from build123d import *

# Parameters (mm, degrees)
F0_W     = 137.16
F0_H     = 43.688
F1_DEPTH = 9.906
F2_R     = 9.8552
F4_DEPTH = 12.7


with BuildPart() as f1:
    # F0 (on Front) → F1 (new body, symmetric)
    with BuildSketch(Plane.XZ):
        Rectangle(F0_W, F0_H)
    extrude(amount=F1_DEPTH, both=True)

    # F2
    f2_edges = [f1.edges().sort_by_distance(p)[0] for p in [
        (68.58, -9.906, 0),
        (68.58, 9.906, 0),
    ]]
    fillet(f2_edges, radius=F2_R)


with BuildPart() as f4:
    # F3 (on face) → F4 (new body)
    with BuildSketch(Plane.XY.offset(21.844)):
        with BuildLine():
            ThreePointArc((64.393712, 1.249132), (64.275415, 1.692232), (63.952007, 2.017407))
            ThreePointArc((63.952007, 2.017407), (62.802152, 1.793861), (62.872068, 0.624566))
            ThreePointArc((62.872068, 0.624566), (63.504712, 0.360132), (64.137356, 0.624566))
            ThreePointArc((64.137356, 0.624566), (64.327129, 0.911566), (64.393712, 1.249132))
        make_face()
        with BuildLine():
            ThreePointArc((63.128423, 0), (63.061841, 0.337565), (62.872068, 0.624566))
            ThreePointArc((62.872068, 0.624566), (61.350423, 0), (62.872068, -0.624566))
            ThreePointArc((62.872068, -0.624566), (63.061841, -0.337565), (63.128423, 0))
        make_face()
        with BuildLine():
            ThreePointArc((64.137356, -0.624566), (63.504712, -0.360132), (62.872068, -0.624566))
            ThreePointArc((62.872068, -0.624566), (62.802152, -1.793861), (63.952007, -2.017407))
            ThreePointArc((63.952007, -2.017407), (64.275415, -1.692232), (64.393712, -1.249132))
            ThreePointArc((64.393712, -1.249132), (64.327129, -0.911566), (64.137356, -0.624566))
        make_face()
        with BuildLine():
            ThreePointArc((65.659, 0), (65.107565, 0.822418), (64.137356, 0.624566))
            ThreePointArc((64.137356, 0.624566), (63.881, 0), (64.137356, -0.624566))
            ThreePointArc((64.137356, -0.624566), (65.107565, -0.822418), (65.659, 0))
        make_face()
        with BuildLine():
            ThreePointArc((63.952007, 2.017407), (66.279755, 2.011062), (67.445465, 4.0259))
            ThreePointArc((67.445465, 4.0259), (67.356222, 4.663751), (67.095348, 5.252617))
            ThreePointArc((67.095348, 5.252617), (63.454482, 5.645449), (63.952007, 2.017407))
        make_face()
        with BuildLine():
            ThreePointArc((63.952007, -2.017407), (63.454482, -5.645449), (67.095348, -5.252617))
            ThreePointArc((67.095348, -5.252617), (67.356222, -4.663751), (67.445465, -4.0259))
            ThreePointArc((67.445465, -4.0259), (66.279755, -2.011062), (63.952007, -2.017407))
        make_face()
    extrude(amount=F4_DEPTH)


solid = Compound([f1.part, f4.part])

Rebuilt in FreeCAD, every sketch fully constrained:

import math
import FreeCAD as App
import Part
import Sketcher
from FreeCAD import Vector
Q = App.Units.Quantity


def edges_at(feature, points):
    """Names of the edges that pass closest to the given points."""
    edges = feature.Shape.Edges
    near = lambda p: min(range(len(edges)), key=lambda i: edges[i].distToShape(Part.Vertex(*p))[0])
    return sorted({f"Edge{near(p) + 1}" for p in points})


def add_polygon(sketch, points):
    """Adds a closed chain of lines whose ends are joined by coincident constraints."""
    first, n = sketch.GeometryCount, len(points)
    for a, b in zip(points, points[1:] + points[:1]):
        sketch.addGeometry(Part.LineSegment(App.Vector(*a, 0), App.Vector(*b, 0)), False)
    for i in range(n):
        sketch.addConstraint(Sketcher.Constraint("Coincident", first + i, 2, first + (i + 1) % n, 1))

doc = App.newDocument("Part")
body = doc.addObject("PartDesign::Body", "Body")

sketch1 = body.newObject("Sketcher::SketchObject", "Sketch")
sketch1.AttachmentSupport = (doc.getObject("XZ_Plane"), [""])
sketch1.MapMode = "FlatFace"
add_polygon(sketch1, [(-69, 22), (-69, -22), (69, -22), (69, 22)])
sketch1.addConstraint([
    Sketcher.Constraint("Vertical", 0),
    Sketcher.Constraint("Horizontal", 1),
    Sketcher.Constraint("Vertical", 2),
    Sketcher.Constraint("Horizontal", 3),
    Sketcher.Constraint("Symmetric", 0, 2, 2, 2, -1, 1),
    Sketcher.Constraint("DistanceX", 1, 1, 1, 2, Q("5.4 in")),
    Sketcher.Constraint("DistanceY", 0, 2, 0, 1, Q("1.72 in")),
])
pad1 = body.newObject("PartDesign::Pad", "Pad")
pad1.Profile = sketch1
pad1.Length = Q("0.78 in")
pad1.Midplane = True
doc.recompute()

fillet = body.newObject("PartDesign::Fillet", "Fillet")
fillet.Base = (pad1, edges_at(pad1, [(68.58, -9.906, 0), (68.58, 9.906, 0)]))
fillet.Radius = Q("0.388 in")
body2 = doc.addObject("PartDesign::Body", "Body001")
body2.AllowCompound = True

sketch2 = body2.newObject("Sketcher::SketchObject", "Sketch001")
sketch2.AttachmentSupport = (doc.getObject("XY_Plane001"), [""])
sketch2.MapMode = "FlatFace"
sketch2.AttachmentOffset = App.Placement(Vector(0, 0, 0.86 * 25.4), App.Rotation())
sketch2.addGeometry([
    Part.ArcOfCircle(Part.Circle(Vector(63.5, 1.2, 0), Vector(0, 0, 1), 0.9), math.radians(0), math.radians(60)),
    Part.ArcOfCircle(Part.Circle(Vector(63.5, 1.2, 0), Vector(0, 0, 1), 0.9), math.radians(60), math.radians(225)),
    Part.ArcOfCircle(Part.Circle(Vector(63.5, 1.2, 0), Vector(0, 0, 1), 0.9), math.radians(-135), math.radians(-45)),
    Part.ArcOfCircle(Part.Circle(Vector(63.5, 1.2, 0), Vector(0, 0, 1), 0.9), math.radians(-45), math.radians(0)),
    Part.ArcOfCircle(Part.Circle(Vector(62.2, 0, 0), Vector(0, 0, 1), 0.9), math.radians(0), math.radians(45)),
    Part.ArcOfCircle(Part.Circle(Vector(62.2, 0, 0), Vector(0, 0, 1), 0.9), math.radians(45), math.radians(315)),
    Part.ArcOfCircle(Part.Circle(Vector(62.2, 0, 0), Vector(0, 0, 1), 0.9), math.radians(-45), math.radians(0)),
    Part.ArcOfCircle(Part.Circle(Vector(63.5, -1.2, 0), Vector(0, 0, 1), 0.9), math.radians(45), math.radians(135)),
    Part.ArcOfCircle(Part.Circle(Vector(63.5, -1.2, 0), Vector(0, 0, 1), 0.9), math.radians(135), math.radians(300)),
    Part.ArcOfCircle(Part.Circle(Vector(63.5, -1.2, 0), Vector(0, 0, 1), 0.9), math.radians(-60), math.radians(0)),
    Part.ArcOfCircle(Part.Circle(Vector(63.5, -1.2, 0), Vector(0, 0, 1), 0.9), math.radians(0), math.radians(45)),
    Part.ArcOfCircle(Part.Circle(Vector(64.8, 0, 0), Vector(0, 0, 1), 0.9), math.radians(0), math.radians(135)),
    Part.ArcOfCircle(Part.Circle(Vector(64.8, 0, 0), Vector(0, 0, 1), 0.9), math.radians(135), math.radians(225)),
    Part.ArcOfCircle(Part.Circle(Vector(64.8, 0, 0), Vector(0, 0, 1), 0.9), math.radians(-135), math.radians(0)),
    Part.ArcOfCircle(Part.Circle(Vector(65.1, 4, 0), Vector(0, 0, 1), 2.3), math.radians(-120), math.radians(0)),
    Part.ArcOfCircle(Part.Circle(Vector(65.1, 4, 0), Vector(0, 0, 1), 2.3), math.radians(0), math.radians(32)),
    Part.ArcOfCircle(Part.Circle(Vector(65.1, 4, 0), Vector(0, 0, 1), 2.3), math.radians(32), math.radians(240)),
    Part.ArcOfCircle(Part.Circle(Vector(65.1, -4, 0), Vector(0, 0, 1), 2.3), math.radians(120), math.radians(328)),
    Part.ArcOfCircle(Part.Circle(Vector(65.1, -4, 0), Vector(0, 0, 1), 2.3), math.radians(-32), math.radians(0)),
    Part.ArcOfCircle(Part.Circle(Vector(65.1, -4, 0), Vector(0, 0, 1), 2.3), math.radians(0), math.radians(120)),
], False)
sketch2.addConstraint([
    Sketcher.Constraint("Coincident", 0, 2, 1, 1),
    Sketcher.Constraint("Tangent", 1, 2, 2, 1),
    Sketcher.Constraint("Tangent", 2, 2, 3, 1),
    Sketcher.Constraint("Tangent", 3, 2, 0, 1),
    Sketcher.Constraint("Coincident", 4, 2, 5, 1),
    Sketcher.Constraint("Coincident", 5, 2, 6, 1),
    Sketcher.Constraint("Tangent", 6, 2, 4, 1),
    Sketcher.Constraint("Tangent", 7, 2, 8, 1),
    Sketcher.Constraint("Coincident", 8, 2, 9, 1),
    Sketcher.Constraint("Tangent", 9, 2, 10, 1),
    Sketcher.Constraint("Tangent", 10, 2, 7, 1),
    Sketcher.Constraint("Tangent", 11, 2, 12, 1),
    Sketcher.Constraint("Tangent", 12, 2, 13, 1),
    Sketcher.Constraint("Tangent", 13, 2, 11, 1),
    Sketcher.Constraint("Tangent", 14, 2, 15, 1),
    Sketcher.Constraint("Coincident", 15, 2, 16, 1),
    Sketcher.Constraint("Tangent", 16, 2, 14, 1),
    Sketcher.Constraint("Coincident", 17, 2, 18, 1),
    Sketcher.Constraint("Tangent", 18, 2, 19, 1),
    Sketcher.Constraint("Tangent", 19, 2, 17, 1),
    Sketcher.Constraint("Coincident", 1, 3, 0, 3),
    Sketcher.Constraint("Coincident", 5, 3, 4, 3),
    Sketcher.Constraint("Coincident", 9, 3, 7, 3),
    Sketcher.Constraint("Coincident", 4, 2, 1, 2),
    Sketcher.Constraint("Coincident", 7, 2, 5, 2),
    Sketcher.Constraint("Coincident", 11, 2, 2, 2),
    Sketcher.Constraint("Coincident", 12, 2, 10, 2),
    Sketcher.Constraint("Coincident", 16, 2, 0, 2),
    Sketcher.Constraint("Coincident", 19, 2, 8, 2),
    Sketcher.Constraint("Equal", 3, 4),
    Sketcher.Constraint("Equal", 6, 7),
    Sketcher.Constraint("Equal", 8, 11),
    Sketcher.Constraint("Equal", 14, 16),
    Sketcher.Constraint("Equal", 16, 17),
    Sketcher.Constraint("Equal", 15, 18),
    Sketcher.Constraint("Symmetric", 0, 3, 7, 3, -1),
    Sketcher.Constraint("Symmetric", 15, 2, 17, 2, -1),
    Sketcher.Constraint("PointOnObject", 6, 2, -1),
    Sketcher.Constraint("PointOnObject", 13, 2, -1),
    Sketcher.Constraint("Horizontal", 1, 2, 2, 2),
    Sketcher.Constraint("Horizontal", 2, 3, 3, 2),
    Sketcher.Constraint("Horizontal", 10, 3, 9, 2),
    Sketcher.Constraint("Horizontal", 7, 2, 10, 2),
    Sketcher.Constraint("Horizontal", 16, 3, 14, 2),
    Sketcher.Constraint("Horizontal", 19, 3, 18, 2),
    Sketcher.Constraint("Vertical", 4, 2, 5, 2),
    Sketcher.Constraint("Vertical", 0, 2, 8, 2),
    Sketcher.Constraint("Radius", 0, Q("0.0349999 in")),
    Sketcher.Constraint("Radius", 14, Q("0.0915 in")),
    Sketcher.Constraint("DistanceX", -1, 1, 11, 3, Q("2.55 in")),
    Sketcher.Constraint("DistanceY", -1, 1, 14, 3, Q("0.1585 in")),
    Sketcher.Constraint("DistanceX", 3, 3, 0, 2, Q("0.447299 mm")),
    Sketcher.Constraint("DistanceX", -1, 1, 1, 3, Q("63.504712 mm")),
    Sketcher.Constraint("DistanceX", -1, 1, 1, 2, Q("62.872068 mm")),
    Sketcher.Constraint("DistanceY", 15, 3, 15, 2, Q("1.22672 mm")),
])
pad2 = body2.newObject("PartDesign::Pad", "Pad001")
pad2.Profile = sketch2
pad2.Length = Q("0.5 in")

doc.recompute()
